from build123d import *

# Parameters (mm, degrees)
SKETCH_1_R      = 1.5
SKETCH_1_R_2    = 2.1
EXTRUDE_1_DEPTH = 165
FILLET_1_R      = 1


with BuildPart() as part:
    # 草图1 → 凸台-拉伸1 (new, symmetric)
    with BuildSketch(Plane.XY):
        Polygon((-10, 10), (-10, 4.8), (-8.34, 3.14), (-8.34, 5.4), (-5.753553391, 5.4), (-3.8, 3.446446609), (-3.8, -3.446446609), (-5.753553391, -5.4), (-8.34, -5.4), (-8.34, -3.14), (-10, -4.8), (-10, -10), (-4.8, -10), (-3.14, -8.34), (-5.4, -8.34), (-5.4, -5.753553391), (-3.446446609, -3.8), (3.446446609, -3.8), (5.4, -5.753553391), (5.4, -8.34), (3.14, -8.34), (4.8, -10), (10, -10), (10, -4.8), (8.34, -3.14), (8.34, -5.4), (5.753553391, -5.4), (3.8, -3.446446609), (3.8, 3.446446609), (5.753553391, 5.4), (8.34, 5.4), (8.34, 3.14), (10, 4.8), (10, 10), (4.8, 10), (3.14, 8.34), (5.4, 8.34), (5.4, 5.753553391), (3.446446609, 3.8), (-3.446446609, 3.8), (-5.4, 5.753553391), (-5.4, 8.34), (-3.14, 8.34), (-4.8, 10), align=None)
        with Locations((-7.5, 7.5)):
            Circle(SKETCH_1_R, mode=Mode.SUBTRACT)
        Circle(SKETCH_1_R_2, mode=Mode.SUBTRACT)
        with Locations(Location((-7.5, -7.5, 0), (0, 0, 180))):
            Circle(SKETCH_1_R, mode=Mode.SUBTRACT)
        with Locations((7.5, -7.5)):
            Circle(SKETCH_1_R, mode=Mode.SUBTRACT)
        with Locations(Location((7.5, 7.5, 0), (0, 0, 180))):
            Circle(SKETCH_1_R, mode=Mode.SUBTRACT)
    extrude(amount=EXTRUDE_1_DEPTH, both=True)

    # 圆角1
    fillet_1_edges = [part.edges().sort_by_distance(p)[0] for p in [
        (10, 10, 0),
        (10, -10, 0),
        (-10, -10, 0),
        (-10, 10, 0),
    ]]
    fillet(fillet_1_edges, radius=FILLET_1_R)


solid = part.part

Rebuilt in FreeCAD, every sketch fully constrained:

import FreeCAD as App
import Part
import Sketcher
from FreeCAD import Vector
Q = App.Units.Quantity


def edges_at(feature, points):
    """Names of the edges that pass closest to the given points."""
    edges = feature.Shape.Edges
    near = lambda p: min(range(len(edges)), key=lambda i: edges[i].distToShape(Part.Vertex(*p))[0])
    return sorted({f"Edge{near(p) + 1}" for p in points})


def add_polygon(sketch, points):
    """Adds a closed chain of lines whose ends are joined by coincident constraints."""
    first, n = sketch.GeometryCount, len(points)
    for a, b in zip(points, points[1:] + points[:1]):
        sketch.addGeometry(Part.LineSegment(App.Vector(*a, 0), App.Vector(*b, 0)), False)
    for i in range(n):
        sketch.addConstraint(Sketcher.Constraint("Coincident", first + i, 2, first + (i + 1) % n, 1))

doc = App.newDocument("Part")
params = doc.addObject("Spreadsheet::Sheet", "Params")
for row, (alias, value) in enumerate([
    ("sketch1_diameter", "3 mm"),
    ("sketch1_diameter2", "4.2 mm"),
    ("sketch1_width", "5.2 mm"),
    ("sketch1_width2", "2.26 mm"),
    ("pad1_length", "330 mm"),
    ("fillet_radius", "1 mm"),
], start=1):
    params.set(f"A{row}", alias)
    params.set(f"B{row}", "=" + value)
    params.setAlias(f"B{row}", alias)

body = doc.addObject("PartDesign::Body", "Body")

# Sketch on XY plane
sketch1 = doc.addObject("Sketcher::SketchObject", "Sketch")
body.addObject(sketch1)
sketch1.AttachmentSupport = (doc.XY_Plane, [""])
sketch1.MapMode = "FlatFace"
add_polygon(sketch1, [(-10, 10), (-10, 4.8), (-8.3, 3.1), (-8.3, 5.4), (-5.8, 5.4), (-3.8, 3.4), (-3.8, -3.4), (-5.8, -5.4), (-8.3, -5.4), (-8.3, -3.1), (-10, -4.8), (-10, -10), (-4.8, -10), (-3.1, -8.3), (-5.4, -8.3), (-5.4, -5.8), (-3.4, -3.8), (3.4, -3.8), (5.4, -5.8), (5.4, -8.3), (3.1, -8.3), (4.8, -10), (10, -10), (10, -4.8), (8.3, -3.1), (8.3, -5.4), (5.8, -5.4), (3.8, -3.4), (3.8, 3.4), (5.8, 5.4), (8.3, 5.4), (8.3, 3.1), (10, 4.8), (10, 10), (4.8, 10), (3.1, 8.3), (5.4, 8.3), (5.4, 5.8), (3.4, 3.8), (-3.4, 3.8), (-5.4, 5.8), (-5.4, 8.3), (-3.1, 8.3), (-4.8, 10)])  # lines 0-43
sketch1.addGeometry(Part.Circle(Vector(-7.5, -7.5, 0), Vector(0, 0, 1), 1.5), False)  # 44
sketch1.addGeometry(Part.Circle(Vector(7.5, -7.5, 0), Vector(0, 0, 1), 1.5), False)  # 45
sketch1.addGeometry(Part.Circle(Vector(-7.5, 7.5, 0), Vector(0, 0, 1), 1.5), False)  # 46
sketch1.addGeometry(Part.Circle(Vector(0, 0, 0), Vector(0, 0, 1), 2.1), False)  # 47
sketch1.addGeometry(Part.Circle(Vector(7.5, 7.5, 0), Vector(0, 0, 1), 1.5), False)  # 48
sketch1.addConstraint(Sketcher.Constraint("Vertical", 0))
sketch1.addConstraint(Sketcher.Constraint("Vertical", 2))
sketch1.addConstraint(Sketcher.Constraint("Horizontal", 3))
sketch1.addConstraint(Sketcher.Constraint("Vertical", 5))
sketch1.addConstraint(Sketcher.Constraint("Horizontal", 7))
sketch1.addConstraint(Sketcher.Constraint("Vertical", 8))
sketch1.addConstraint(Sketcher.Constraint("Vertical", 10))
sketch1.addConstraint(Sketcher.Constraint("Horizontal", 11))
sketch1.addConstraint(Sketcher.Constraint("Horizontal", 13))
sketch1.addConstraint(Sketcher.Constraint("Vertical", 14))
sketch1.addConstraint(Sketcher.Constraint("Horizontal", 16))
sketch1.addConstraint(Sketcher.Constraint("Vertical", 18))
sketch1.addConstraint(Sketcher.Constraint("Horizontal", 19))
sketch1.addConstraint(Sketcher.Constraint("Horizontal", 21))
sketch1.addConstraint(Sketcher.Constraint("Vertical", 22))
sketch1.addConstraint(Sketcher.Constraint("Vertical", 24))
sketch1.addConstraint(Sketcher.Constraint("Horizontal", 25))
sketch1.addConstraint(Sketcher.Constraint("Vertical", 27))
sketch1.addConstraint(Sketcher.Constraint("Horizontal", 29))
sketch1.addConstraint(Sketcher.Constraint("Vertical", 30))
sketch1.addConstraint(Sketcher.Constraint("Vertical", 32))
sketch1.addConstraint(Sketcher.Constraint("Horizontal", 33))
sketch1.addConstraint(Sketcher.Constraint("Horizontal", 35))
sketch1.addConstraint(Sketcher.Constraint("Vertical", 36))
sketch1.addConstraint(Sketcher.Constraint("Horizontal", 38))
sketch1.addConstraint(Sketcher.Constraint("Vertical", 40))
sketch1.addConstraint(Sketcher.Constraint("Horizontal", 41))
sketch1.addConstraint(Sketcher.Constraint("Horizontal", 43))
sketch1.addConstraint(Sketcher.Constraint("Coincident", 47, 3, -1, 1))
sketch1.addConstraint(Sketcher.Constraint("Equal", 44, 45))
sketch1.addConstraint(Sketcher.Constraint("Equal", 45, 46))
sketch1.addConstraint(Sketcher.Constraint("Equal", 46, 48))
sketch1.addConstraint(Sketcher.Constraint("Symmetric", 45, 3, 46, 3, -1, 1))
sketch1.addConstraint(Sketcher.Constraint("Symmetric", 44, 3, 48, 3, -1, 1))
sketch1.addConstraint(Sketcher.Constraint("Symmetric", 0, 2, 22, 2, -1, 1))
sketch1.addConstraint(Sketcher.Constraint("Symmetric", 1, 2, 23, 2, -1, 1))
sketch1.addConstraint(Sketcher.Constraint("Symmetric", 3, 2, 25, 2, -1, 1))
sketch1.addConstraint(Sketcher.Constraint("Symmetric", 4, 2, 26, 2, -1, 1))
sketch1.addConstraint(Sketcher.Constraint("Symmetric", 6, 2, 28, 2, -1, 1))
sketch1.addConstraint(Sketcher.Constraint("Symmetric", 8, 2, 30, 2, -1, 1))
sketch1.addConstraint(Sketcher.Constraint("Symmetric", 9, 2, 31, 2, -1, 1))
sketch1.addConstraint(Sketcher.Constraint("Symmetric", 11, 2, 33, 2, -1, 1))
sketch1.addConstraint(Sketcher.Constraint("Symmetric", 12, 2, 34, 2, -1, 1))
sketch1.addConstraint(Sketcher.Constraint("Symmetric", 14, 2, 36, 2, -1, 1))
sketch1.addConstraint(Sketcher.Constraint("Symmetric", 15, 2, 37, 2, -1, 1))
sketch1.addConstraint(Sketcher.Constraint("Symmetric", 17, 2, 39, 2, -1, 1))
sketch1.addConstraint(Sketcher.Constraint("Symmetric", 19, 2, 41, 2, -1, 1))
sketch1.addConstraint(Sketcher.Constraint("Symmetric", 20, 2, 42, 2, -1, 1))
sketch1.addConstraint(Sketcher.Constraint("Symmetric", 44, 3, 45, 3, -2))
sketch1.addConstraint(Sketcher.Constraint("Symmetric", 14, 2, 17, 2, -2))
sketch1.addConstraint(Sketcher.Constraint("Symmetric", 12, 2, 19, 2, -2))
sketch1.addConstraint(Sketcher.Constraint("Symmetric", 11, 2, 20, 2, -2))
sketch1.addConstraint(Sketcher.Constraint("Symmetric", 9, 2, 22, 2, -2))
sketch1.addConstraint(Sketcher.Constraint("Symmetric", 8, 2, 23, 2, -2))
sketch1.addConstraint(Sketcher.Constraint("Symmetric", 6, 2, 25, 2, -2))
sketch1.addConstraint(Sketcher.Constraint("Parallel", 1, 4))
sketch1.addConstraint(Sketcher.Constraint("Perpendicular", 4, 6))
sketch1.addConstraint(Sketcher.Constraint("Parallel", 6, 9))
sketch1.addConstraint(Sketcher.Constraint("Parallel", 9, 12))
sketch1.addConstraint(Sketcher.Constraint("Parallel", 12, 15))
sketch1.addConstraint(Sketcher.Constraint("Perpendicular", 15, 17))
sketch1.addConstraint(Sketcher.Constraint("Perpendicular", 26, 28))
sketch1.addConstraint(Sketcher.Constraint("Perpendicular", 37, 39))
sketch1.addConstraint(Sketcher.Constraint("Equal", 43, 0))
sketch1.addConstraint(Sketcher.Constraint("Equal", 41, 2))
sketch1.addConstraint(Sketcher.Constraint("Equal", 38, 5))
sketch1.addConstraint(Sketcher.Constraint("Equal", 29, 14))
sketch1.addConstraint(Sketcher.Constraint("Equal", 9, 12))
sketch1.addConstraint(Sketcher.Constraint("Equal", 6, 15))
sketch1.addConstraint(Sketcher.Constraint("Diameter", 44, Q("3 mm")))
sketch1.addConstraint(Sketcher.Constraint("Diameter", 47, Q("4.2 mm")))
sketch1.addConstraint(Sketcher.Constraint("DistanceX", 11, 1, 11, 2, Q("5.2 mm")))
sketch1.addConstraint(Sketcher.Constraint("DistanceX", 0, 2, -1, 1, Q("10 mm")))
sketch1.addConstraint(Sketcher.Constraint("DistanceX", 44, 3, 45, 3, Q("15 mm")))
sketch1.addConstraint(Sketcher.Constraint("DistanceY", 44, 3, 46, 3, Q("15 mm")))
sketch1.addConstraint(Sketcher.Constraint("DistanceX", 11, 2, 5, 2, Q("1 mm")))
sketch1.addConstraint(Sketcher.Constraint("DistanceX", 13, 2, 13, 1, Q("2.26 mm")))
sketch1.addConstraint(Sketcher.Constraint("DistanceY", -1, 1, 2, 2, Q("5.4 mm")))
sketch1.addConstraint(Sketcher.Constraint("Distance", 4, Q("2.762742 mm")))
sketch1.setExpression("Constraints[113]", "Params.sketch1_diameter")
sketch1.setExpression("Constraints[114]", "Params.sketch1_diameter2")
sketch1.setExpression("Constraints[115]", "Params.sketch1_width")
sketch1.setExpression("Constraints[120]", "Params.sketch1_width2")
pad1 = doc.addObject("PartDesign::Pad", "Pad")
body.addObject(pad1)
pad1.Profile = sketch1
pad1.setExpression("Length", "Params.pad1_length")
pad1.Midplane = True
doc.recompute()

fillet = doc.addObject("PartDesign::Fillet", "Fillet")
body.addObject(fillet)
fillet.Base = (pad1, edges_at(pad1, [
    (10, 10, 0),
    (10, -10, 0),
    (-10, -10, 0),
    (-10, 10, 0),
]))
fillet.setExpression("Radius", "Params.fillet_radius")

doc.recompute()
